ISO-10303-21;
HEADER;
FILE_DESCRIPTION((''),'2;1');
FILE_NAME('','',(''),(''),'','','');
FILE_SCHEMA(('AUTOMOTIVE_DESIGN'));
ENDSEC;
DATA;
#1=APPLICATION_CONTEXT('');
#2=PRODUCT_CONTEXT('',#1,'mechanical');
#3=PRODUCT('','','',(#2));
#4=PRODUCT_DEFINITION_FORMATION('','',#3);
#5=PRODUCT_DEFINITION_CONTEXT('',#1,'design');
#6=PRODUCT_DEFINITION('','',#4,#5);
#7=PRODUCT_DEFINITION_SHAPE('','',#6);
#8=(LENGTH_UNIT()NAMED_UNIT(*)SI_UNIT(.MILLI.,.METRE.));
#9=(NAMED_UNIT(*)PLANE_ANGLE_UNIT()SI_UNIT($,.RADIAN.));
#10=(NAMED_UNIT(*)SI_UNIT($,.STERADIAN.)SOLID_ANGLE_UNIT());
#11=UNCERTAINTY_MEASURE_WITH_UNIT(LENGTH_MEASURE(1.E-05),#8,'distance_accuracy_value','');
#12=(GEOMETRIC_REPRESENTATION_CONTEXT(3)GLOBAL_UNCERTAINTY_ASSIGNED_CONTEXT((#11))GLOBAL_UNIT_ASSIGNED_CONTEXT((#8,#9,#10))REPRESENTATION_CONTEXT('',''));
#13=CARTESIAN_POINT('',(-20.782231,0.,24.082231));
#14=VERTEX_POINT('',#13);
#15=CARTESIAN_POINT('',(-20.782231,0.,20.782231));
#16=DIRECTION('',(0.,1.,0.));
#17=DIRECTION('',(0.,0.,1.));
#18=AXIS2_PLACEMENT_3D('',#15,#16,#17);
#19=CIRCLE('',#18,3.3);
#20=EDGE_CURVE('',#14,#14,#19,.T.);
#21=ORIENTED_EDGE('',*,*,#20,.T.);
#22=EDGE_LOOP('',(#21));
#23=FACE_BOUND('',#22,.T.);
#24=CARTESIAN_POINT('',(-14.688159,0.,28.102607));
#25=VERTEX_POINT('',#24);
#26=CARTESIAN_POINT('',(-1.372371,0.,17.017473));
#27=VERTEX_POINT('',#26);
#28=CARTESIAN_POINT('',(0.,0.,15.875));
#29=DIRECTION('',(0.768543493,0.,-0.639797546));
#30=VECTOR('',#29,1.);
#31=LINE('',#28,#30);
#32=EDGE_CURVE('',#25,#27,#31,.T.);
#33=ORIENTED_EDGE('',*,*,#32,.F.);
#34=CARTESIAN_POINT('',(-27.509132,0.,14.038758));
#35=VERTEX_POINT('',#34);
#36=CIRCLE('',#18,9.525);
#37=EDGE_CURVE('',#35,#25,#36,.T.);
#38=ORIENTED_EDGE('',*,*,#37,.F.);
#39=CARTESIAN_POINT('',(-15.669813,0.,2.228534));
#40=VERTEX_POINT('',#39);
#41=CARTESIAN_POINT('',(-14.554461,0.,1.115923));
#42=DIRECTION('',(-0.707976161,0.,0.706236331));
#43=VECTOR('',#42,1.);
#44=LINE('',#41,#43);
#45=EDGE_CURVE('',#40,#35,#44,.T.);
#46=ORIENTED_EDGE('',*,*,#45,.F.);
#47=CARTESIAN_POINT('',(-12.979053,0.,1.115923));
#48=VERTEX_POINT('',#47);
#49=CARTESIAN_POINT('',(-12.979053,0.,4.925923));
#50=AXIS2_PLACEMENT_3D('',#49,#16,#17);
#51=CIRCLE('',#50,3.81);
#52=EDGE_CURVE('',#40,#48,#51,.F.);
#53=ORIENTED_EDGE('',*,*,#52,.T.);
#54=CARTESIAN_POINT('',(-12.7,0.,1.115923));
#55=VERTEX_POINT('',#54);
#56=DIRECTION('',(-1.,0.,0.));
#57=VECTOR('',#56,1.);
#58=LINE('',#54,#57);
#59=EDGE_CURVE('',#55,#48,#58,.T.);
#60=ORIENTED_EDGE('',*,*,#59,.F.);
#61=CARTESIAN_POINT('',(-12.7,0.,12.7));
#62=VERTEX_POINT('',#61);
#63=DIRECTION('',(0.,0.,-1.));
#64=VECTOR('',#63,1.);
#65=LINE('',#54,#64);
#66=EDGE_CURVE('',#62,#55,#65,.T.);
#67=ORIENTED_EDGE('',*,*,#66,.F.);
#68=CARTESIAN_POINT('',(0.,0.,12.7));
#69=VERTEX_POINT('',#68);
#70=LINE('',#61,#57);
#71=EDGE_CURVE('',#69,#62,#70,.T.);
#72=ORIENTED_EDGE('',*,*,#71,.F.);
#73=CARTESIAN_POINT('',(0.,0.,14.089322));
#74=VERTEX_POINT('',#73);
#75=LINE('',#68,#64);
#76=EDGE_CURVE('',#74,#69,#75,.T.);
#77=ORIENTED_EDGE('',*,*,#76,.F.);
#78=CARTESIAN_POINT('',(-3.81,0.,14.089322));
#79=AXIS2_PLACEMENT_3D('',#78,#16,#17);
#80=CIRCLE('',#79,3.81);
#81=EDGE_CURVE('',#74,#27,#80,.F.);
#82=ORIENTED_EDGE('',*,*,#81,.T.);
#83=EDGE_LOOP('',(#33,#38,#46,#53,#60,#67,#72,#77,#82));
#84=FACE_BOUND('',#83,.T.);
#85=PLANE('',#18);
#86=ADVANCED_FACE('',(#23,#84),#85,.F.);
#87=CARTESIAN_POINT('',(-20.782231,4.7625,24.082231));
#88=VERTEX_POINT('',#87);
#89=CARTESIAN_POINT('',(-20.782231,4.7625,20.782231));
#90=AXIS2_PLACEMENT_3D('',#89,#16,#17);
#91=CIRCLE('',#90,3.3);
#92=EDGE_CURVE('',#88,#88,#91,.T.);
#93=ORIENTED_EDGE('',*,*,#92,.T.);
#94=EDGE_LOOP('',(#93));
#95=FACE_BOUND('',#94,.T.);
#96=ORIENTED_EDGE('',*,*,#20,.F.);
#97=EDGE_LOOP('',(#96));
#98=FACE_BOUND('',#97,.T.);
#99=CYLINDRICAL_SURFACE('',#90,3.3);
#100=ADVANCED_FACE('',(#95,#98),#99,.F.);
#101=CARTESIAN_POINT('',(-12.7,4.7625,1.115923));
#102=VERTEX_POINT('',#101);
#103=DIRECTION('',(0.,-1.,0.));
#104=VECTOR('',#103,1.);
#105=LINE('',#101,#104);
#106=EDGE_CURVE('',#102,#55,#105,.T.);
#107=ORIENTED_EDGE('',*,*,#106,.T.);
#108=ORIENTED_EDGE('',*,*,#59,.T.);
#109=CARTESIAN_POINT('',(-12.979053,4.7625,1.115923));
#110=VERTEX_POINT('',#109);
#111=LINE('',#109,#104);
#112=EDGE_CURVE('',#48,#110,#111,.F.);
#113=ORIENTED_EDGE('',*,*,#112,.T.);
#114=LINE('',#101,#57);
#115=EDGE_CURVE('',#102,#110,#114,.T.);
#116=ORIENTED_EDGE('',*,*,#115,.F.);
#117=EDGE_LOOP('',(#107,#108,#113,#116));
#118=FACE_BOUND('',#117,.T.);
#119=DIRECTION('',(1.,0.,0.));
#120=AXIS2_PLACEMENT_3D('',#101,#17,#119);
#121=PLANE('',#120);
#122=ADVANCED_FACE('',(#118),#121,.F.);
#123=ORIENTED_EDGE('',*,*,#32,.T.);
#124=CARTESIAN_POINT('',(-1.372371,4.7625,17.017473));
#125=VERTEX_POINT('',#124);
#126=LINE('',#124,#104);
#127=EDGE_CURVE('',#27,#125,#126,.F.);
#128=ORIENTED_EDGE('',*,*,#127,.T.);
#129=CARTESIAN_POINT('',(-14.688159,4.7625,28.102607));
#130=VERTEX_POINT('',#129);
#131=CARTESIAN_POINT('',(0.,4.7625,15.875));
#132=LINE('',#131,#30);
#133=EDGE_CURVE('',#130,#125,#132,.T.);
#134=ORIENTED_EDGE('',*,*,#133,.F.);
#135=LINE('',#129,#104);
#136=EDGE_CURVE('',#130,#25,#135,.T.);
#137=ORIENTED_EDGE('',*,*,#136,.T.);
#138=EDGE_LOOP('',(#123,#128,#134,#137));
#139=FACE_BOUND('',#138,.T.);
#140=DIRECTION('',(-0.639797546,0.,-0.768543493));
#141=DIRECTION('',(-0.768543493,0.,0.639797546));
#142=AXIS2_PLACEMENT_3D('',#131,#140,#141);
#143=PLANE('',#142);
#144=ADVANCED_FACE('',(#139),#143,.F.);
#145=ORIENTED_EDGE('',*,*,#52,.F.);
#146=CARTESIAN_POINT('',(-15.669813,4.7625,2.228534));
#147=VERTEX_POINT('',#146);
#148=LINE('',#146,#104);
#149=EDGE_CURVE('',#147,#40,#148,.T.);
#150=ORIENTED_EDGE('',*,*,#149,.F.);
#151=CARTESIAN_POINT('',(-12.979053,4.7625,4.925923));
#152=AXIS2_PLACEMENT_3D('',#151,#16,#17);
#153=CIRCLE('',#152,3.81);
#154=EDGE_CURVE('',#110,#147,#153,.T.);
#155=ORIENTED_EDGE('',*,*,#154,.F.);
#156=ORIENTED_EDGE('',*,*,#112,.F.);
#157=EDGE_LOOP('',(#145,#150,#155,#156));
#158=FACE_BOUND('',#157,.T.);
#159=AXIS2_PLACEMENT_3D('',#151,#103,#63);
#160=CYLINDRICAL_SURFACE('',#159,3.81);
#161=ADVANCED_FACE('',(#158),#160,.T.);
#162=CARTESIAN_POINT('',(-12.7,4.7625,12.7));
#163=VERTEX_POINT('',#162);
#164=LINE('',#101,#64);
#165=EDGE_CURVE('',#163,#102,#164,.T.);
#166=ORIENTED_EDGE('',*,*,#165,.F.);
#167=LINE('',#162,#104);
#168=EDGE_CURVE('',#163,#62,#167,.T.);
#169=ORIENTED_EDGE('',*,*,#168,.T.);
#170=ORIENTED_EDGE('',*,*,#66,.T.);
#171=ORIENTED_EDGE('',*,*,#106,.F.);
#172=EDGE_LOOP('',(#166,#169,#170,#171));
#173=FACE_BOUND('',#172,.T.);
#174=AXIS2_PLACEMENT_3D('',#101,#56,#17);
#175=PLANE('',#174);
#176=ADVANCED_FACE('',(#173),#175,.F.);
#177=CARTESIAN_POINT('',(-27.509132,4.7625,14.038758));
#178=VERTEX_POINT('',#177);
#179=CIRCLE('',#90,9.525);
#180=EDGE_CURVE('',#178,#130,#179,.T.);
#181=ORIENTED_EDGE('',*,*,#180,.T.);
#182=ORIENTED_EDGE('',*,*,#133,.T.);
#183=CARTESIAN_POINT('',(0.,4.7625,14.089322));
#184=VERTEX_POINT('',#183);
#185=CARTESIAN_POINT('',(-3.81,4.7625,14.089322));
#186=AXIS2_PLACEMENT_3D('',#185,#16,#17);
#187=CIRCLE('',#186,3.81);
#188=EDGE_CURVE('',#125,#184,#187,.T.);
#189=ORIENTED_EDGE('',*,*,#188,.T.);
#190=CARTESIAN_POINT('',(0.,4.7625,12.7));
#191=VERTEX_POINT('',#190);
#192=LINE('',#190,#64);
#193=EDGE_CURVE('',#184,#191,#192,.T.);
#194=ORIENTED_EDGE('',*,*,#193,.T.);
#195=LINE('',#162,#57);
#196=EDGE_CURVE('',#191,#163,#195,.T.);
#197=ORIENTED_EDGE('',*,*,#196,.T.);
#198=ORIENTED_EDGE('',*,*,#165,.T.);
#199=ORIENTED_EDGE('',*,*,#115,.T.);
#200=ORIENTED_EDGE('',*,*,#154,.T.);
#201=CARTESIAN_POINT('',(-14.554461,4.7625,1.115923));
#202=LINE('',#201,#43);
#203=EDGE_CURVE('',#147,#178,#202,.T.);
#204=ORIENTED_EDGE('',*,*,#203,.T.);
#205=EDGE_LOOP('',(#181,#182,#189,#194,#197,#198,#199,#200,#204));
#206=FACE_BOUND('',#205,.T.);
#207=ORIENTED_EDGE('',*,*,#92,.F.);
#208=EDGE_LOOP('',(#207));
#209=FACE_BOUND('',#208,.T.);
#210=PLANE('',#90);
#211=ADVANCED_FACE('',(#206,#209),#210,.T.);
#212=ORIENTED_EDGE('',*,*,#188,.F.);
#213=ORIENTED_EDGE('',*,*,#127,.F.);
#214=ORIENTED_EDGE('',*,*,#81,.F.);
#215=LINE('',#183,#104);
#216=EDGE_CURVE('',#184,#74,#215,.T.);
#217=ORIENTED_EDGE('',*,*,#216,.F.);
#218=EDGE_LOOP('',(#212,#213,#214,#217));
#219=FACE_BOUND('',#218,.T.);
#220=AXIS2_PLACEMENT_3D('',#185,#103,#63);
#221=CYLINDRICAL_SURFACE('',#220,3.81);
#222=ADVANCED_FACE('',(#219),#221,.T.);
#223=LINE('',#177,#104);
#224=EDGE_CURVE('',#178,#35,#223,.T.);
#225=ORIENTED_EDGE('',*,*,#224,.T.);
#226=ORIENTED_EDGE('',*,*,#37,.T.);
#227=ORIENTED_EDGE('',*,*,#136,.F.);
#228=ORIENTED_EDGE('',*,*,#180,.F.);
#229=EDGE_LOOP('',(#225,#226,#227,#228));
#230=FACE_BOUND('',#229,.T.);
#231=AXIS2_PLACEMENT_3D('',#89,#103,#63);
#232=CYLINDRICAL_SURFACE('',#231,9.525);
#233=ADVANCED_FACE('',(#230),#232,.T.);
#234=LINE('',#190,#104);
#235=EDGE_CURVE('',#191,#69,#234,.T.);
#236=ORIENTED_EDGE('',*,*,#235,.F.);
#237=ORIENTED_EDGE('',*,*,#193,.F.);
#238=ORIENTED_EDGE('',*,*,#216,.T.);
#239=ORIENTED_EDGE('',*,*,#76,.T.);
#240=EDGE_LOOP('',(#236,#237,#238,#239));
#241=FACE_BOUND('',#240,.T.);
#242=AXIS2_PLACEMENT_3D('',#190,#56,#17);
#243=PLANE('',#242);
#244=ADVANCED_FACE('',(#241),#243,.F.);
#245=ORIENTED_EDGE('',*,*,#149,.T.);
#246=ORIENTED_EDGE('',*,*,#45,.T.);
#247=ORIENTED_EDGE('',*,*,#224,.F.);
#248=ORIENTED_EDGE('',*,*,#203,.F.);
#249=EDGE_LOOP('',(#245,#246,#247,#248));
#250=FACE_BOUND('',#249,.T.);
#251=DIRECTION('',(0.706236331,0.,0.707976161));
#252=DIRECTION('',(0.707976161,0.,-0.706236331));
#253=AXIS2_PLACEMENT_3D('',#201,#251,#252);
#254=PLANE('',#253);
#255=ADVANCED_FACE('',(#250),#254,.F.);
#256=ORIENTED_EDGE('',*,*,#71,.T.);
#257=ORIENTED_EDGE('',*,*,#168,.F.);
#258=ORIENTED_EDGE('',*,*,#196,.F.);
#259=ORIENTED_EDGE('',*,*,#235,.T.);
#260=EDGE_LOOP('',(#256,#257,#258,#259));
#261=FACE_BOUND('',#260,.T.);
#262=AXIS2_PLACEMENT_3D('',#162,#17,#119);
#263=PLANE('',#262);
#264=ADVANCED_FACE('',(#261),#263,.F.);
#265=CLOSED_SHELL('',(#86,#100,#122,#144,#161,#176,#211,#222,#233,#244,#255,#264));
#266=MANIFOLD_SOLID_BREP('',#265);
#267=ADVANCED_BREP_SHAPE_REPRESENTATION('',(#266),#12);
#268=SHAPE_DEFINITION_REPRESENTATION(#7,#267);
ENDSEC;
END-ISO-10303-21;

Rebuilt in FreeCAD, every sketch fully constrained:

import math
import FreeCAD as App
import Part
import Sketcher
from FreeCAD import Vector
Q = App.Units.Quantity


def edges_at(feature, points):
    """Names of the edges that pass closest to the given points."""
    edges = feature.Shape.Edges
    near = lambda p: min(range(len(edges)), key=lambda i: edges[i].distToShape(Part.Vertex(*p))[0])
    return sorted({f"Edge{near(p) + 1}" for p in points})

doc = App.newDocument("Part")
body = doc.addObject("PartDesign::Body", "Body")

sketch1 = doc.addObject("Sketcher::SketchObject", "Sketch")
body.addObject(sketch1)
sketch1.AttachmentSupport = (doc.XZ_Plane, [""])
sketch1.MapMode = "FlatFace"
sketch1.addGeometry(Part.LineSegment(Vector(-12.7, 12.7, 0), Vector(-12.7, 1.115923, 0)), False)
sketch1.addGeometry(Part.LineSegment(Vector(-12.7, 1.115923, 0), Vector(-14.554461, 1.115923, 0)), False)
sketch1.addGeometry(Part.LineSegment(Vector(-14.554461, 1.115923, 0), Vector(-27.509132, 14.038758, 0)), False)
sketch1.addGeometry(Part.ArcOfCircle(Part.Circle(Vector(-20.782231, 20.782231, 0), Vector(0, 0, 1), 9.525), math.radians(50.223275), math.radians(225.070488)), False)
sketch1.addGeometry(Part.LineSegment(Vector(-14.688159, 28.102607, 0), Vector(0, 15.875, 0)), False)
sketch1.addGeometry(Part.LineSegment(Vector(0, 15.875, 0), Vector(0, 12.7, 0)), False)
sketch1.addGeometry(Part.LineSegment(Vector(0, 12.7, 0), Vector(-12.7, 12.7, 0)), False)
sketch1.addConstraint(Sketcher.Constraint("Coincident", 0, 2, 1, 1))
sketch1.addConstraint(Sketcher.Constraint("Coincident", 1, 2, 2, 1))
sketch1.addConstraint(Sketcher.Constraint("Tangent", 2, 2, 3, 2))
sketch1.addConstraint(Sketcher.Constraint("Tangent", 3, 1, 4, 1))
sketch1.addConstraint(Sketcher.Constraint("Coincident", 4, 2, 5, 1))
sketch1.addConstraint(Sketcher.Constraint("Coincident", 5, 2, 6, 1))
sketch1.addConstraint(Sketcher.Constraint("Coincident", 6, 2, 0, 1))
sketch1.addConstraint(Sketcher.Constraint("Vertical", 0))
sketch1.addConstraint(Sketcher.Constraint("Horizontal", 1))
sketch1.addConstraint(Sketcher.Constraint("Vertical", 5))
sketch1.addConstraint(Sketcher.Constraint("Horizontal", 6))
sketch1.addConstraint(Sketcher.Constraint("PointOnObject", 4, 2, -2))
sketch1.addConstraint(Sketcher.Constraint("DistanceX", 6, 2, 6, 1, Q("0.5 in")))
sketch1.addConstraint(Sketcher.Constraint("Radius", 3, Q("0.375 in")))
sketch1.addConstraint(Sketcher.Constraint("DistanceY", -1, 1, 5, 2, Q("0.5 in")))
sketch1.addConstraint(Sketcher.Constraint("DistanceY", 5, 2, 5, 1, Q("0.125 in")))
sketch1.addConstraint(Sketcher.Constraint("DistanceX", 1, 2, 1, 1, Q("1.854461 mm")))
sketch1.addConstraint(Sketcher.Constraint("DistanceX", 2, 2, 3, 3, Q("6.726901 mm")))
sketch1.addConstraint(Sketcher.Constraint("DistanceY", 0, 2, 0, 1, Q("11.584077 mm")))
sketch1.addConstraint(Sketcher.Constraint("DistanceX", 3, 3, -1, 1, Q("20.782231 mm")))
pad1 = doc.addObject("PartDesign::Pad", "Pad")
body.addObject(pad1)
pad1.Profile = sketch1
pad1.Length = Q("0.1875 in")
pad1.Reversed = True
doc.recompute()

fillet = doc.addObject("PartDesign::Fillet", "Fillet")
body.addObject(fillet)
fillet.Base = (pad1, edges_at(pad1, [(0, 2.381, 15.875), (-14.554, 2.381, 1.116)]))
fillet.Radius = Q("0.15 in")

sketch2 = doc.addObject("Sketcher::SketchObject", "Sketch001")
body.addObject(sketch2)
sketch2.AttachmentSupport = (doc.XZ_Plane, [""])
sketch2.MapMode = "FlatFace"
sketch2.AttachmentOffset = App.Placement(Vector(0, 0, -0.1875 * 25.4), App.Rotation())
sketch2.addGeometry(Part.Circle(Vector(-20.782231, 20.782231, 0), Vector(0, 0, 1), 3.3), False)
sketch2.addConstraint(Sketcher.Constraint("Diameter", 0, Q("6.6 mm")))
sketch2.addConstraint(Sketcher.Constraint("DistanceX", 0, 3, -1, 1, Q("20.782231 mm")))
sketch2.addConstraint(Sketcher.Constraint("DistanceY", -1, 1, 0, 3, Q("20.782231 mm")))
doc.recompute()
hole = doc.addObject("PartDesign::Hole", "Hole")
body.addObject(hole)
hole.Profile = sketch2
hole.ThreadType = "None"
hole.Diameter = 6.6
hole.DepthType = "ThroughAll"
hole.Reversed = True

doc.recompute()
